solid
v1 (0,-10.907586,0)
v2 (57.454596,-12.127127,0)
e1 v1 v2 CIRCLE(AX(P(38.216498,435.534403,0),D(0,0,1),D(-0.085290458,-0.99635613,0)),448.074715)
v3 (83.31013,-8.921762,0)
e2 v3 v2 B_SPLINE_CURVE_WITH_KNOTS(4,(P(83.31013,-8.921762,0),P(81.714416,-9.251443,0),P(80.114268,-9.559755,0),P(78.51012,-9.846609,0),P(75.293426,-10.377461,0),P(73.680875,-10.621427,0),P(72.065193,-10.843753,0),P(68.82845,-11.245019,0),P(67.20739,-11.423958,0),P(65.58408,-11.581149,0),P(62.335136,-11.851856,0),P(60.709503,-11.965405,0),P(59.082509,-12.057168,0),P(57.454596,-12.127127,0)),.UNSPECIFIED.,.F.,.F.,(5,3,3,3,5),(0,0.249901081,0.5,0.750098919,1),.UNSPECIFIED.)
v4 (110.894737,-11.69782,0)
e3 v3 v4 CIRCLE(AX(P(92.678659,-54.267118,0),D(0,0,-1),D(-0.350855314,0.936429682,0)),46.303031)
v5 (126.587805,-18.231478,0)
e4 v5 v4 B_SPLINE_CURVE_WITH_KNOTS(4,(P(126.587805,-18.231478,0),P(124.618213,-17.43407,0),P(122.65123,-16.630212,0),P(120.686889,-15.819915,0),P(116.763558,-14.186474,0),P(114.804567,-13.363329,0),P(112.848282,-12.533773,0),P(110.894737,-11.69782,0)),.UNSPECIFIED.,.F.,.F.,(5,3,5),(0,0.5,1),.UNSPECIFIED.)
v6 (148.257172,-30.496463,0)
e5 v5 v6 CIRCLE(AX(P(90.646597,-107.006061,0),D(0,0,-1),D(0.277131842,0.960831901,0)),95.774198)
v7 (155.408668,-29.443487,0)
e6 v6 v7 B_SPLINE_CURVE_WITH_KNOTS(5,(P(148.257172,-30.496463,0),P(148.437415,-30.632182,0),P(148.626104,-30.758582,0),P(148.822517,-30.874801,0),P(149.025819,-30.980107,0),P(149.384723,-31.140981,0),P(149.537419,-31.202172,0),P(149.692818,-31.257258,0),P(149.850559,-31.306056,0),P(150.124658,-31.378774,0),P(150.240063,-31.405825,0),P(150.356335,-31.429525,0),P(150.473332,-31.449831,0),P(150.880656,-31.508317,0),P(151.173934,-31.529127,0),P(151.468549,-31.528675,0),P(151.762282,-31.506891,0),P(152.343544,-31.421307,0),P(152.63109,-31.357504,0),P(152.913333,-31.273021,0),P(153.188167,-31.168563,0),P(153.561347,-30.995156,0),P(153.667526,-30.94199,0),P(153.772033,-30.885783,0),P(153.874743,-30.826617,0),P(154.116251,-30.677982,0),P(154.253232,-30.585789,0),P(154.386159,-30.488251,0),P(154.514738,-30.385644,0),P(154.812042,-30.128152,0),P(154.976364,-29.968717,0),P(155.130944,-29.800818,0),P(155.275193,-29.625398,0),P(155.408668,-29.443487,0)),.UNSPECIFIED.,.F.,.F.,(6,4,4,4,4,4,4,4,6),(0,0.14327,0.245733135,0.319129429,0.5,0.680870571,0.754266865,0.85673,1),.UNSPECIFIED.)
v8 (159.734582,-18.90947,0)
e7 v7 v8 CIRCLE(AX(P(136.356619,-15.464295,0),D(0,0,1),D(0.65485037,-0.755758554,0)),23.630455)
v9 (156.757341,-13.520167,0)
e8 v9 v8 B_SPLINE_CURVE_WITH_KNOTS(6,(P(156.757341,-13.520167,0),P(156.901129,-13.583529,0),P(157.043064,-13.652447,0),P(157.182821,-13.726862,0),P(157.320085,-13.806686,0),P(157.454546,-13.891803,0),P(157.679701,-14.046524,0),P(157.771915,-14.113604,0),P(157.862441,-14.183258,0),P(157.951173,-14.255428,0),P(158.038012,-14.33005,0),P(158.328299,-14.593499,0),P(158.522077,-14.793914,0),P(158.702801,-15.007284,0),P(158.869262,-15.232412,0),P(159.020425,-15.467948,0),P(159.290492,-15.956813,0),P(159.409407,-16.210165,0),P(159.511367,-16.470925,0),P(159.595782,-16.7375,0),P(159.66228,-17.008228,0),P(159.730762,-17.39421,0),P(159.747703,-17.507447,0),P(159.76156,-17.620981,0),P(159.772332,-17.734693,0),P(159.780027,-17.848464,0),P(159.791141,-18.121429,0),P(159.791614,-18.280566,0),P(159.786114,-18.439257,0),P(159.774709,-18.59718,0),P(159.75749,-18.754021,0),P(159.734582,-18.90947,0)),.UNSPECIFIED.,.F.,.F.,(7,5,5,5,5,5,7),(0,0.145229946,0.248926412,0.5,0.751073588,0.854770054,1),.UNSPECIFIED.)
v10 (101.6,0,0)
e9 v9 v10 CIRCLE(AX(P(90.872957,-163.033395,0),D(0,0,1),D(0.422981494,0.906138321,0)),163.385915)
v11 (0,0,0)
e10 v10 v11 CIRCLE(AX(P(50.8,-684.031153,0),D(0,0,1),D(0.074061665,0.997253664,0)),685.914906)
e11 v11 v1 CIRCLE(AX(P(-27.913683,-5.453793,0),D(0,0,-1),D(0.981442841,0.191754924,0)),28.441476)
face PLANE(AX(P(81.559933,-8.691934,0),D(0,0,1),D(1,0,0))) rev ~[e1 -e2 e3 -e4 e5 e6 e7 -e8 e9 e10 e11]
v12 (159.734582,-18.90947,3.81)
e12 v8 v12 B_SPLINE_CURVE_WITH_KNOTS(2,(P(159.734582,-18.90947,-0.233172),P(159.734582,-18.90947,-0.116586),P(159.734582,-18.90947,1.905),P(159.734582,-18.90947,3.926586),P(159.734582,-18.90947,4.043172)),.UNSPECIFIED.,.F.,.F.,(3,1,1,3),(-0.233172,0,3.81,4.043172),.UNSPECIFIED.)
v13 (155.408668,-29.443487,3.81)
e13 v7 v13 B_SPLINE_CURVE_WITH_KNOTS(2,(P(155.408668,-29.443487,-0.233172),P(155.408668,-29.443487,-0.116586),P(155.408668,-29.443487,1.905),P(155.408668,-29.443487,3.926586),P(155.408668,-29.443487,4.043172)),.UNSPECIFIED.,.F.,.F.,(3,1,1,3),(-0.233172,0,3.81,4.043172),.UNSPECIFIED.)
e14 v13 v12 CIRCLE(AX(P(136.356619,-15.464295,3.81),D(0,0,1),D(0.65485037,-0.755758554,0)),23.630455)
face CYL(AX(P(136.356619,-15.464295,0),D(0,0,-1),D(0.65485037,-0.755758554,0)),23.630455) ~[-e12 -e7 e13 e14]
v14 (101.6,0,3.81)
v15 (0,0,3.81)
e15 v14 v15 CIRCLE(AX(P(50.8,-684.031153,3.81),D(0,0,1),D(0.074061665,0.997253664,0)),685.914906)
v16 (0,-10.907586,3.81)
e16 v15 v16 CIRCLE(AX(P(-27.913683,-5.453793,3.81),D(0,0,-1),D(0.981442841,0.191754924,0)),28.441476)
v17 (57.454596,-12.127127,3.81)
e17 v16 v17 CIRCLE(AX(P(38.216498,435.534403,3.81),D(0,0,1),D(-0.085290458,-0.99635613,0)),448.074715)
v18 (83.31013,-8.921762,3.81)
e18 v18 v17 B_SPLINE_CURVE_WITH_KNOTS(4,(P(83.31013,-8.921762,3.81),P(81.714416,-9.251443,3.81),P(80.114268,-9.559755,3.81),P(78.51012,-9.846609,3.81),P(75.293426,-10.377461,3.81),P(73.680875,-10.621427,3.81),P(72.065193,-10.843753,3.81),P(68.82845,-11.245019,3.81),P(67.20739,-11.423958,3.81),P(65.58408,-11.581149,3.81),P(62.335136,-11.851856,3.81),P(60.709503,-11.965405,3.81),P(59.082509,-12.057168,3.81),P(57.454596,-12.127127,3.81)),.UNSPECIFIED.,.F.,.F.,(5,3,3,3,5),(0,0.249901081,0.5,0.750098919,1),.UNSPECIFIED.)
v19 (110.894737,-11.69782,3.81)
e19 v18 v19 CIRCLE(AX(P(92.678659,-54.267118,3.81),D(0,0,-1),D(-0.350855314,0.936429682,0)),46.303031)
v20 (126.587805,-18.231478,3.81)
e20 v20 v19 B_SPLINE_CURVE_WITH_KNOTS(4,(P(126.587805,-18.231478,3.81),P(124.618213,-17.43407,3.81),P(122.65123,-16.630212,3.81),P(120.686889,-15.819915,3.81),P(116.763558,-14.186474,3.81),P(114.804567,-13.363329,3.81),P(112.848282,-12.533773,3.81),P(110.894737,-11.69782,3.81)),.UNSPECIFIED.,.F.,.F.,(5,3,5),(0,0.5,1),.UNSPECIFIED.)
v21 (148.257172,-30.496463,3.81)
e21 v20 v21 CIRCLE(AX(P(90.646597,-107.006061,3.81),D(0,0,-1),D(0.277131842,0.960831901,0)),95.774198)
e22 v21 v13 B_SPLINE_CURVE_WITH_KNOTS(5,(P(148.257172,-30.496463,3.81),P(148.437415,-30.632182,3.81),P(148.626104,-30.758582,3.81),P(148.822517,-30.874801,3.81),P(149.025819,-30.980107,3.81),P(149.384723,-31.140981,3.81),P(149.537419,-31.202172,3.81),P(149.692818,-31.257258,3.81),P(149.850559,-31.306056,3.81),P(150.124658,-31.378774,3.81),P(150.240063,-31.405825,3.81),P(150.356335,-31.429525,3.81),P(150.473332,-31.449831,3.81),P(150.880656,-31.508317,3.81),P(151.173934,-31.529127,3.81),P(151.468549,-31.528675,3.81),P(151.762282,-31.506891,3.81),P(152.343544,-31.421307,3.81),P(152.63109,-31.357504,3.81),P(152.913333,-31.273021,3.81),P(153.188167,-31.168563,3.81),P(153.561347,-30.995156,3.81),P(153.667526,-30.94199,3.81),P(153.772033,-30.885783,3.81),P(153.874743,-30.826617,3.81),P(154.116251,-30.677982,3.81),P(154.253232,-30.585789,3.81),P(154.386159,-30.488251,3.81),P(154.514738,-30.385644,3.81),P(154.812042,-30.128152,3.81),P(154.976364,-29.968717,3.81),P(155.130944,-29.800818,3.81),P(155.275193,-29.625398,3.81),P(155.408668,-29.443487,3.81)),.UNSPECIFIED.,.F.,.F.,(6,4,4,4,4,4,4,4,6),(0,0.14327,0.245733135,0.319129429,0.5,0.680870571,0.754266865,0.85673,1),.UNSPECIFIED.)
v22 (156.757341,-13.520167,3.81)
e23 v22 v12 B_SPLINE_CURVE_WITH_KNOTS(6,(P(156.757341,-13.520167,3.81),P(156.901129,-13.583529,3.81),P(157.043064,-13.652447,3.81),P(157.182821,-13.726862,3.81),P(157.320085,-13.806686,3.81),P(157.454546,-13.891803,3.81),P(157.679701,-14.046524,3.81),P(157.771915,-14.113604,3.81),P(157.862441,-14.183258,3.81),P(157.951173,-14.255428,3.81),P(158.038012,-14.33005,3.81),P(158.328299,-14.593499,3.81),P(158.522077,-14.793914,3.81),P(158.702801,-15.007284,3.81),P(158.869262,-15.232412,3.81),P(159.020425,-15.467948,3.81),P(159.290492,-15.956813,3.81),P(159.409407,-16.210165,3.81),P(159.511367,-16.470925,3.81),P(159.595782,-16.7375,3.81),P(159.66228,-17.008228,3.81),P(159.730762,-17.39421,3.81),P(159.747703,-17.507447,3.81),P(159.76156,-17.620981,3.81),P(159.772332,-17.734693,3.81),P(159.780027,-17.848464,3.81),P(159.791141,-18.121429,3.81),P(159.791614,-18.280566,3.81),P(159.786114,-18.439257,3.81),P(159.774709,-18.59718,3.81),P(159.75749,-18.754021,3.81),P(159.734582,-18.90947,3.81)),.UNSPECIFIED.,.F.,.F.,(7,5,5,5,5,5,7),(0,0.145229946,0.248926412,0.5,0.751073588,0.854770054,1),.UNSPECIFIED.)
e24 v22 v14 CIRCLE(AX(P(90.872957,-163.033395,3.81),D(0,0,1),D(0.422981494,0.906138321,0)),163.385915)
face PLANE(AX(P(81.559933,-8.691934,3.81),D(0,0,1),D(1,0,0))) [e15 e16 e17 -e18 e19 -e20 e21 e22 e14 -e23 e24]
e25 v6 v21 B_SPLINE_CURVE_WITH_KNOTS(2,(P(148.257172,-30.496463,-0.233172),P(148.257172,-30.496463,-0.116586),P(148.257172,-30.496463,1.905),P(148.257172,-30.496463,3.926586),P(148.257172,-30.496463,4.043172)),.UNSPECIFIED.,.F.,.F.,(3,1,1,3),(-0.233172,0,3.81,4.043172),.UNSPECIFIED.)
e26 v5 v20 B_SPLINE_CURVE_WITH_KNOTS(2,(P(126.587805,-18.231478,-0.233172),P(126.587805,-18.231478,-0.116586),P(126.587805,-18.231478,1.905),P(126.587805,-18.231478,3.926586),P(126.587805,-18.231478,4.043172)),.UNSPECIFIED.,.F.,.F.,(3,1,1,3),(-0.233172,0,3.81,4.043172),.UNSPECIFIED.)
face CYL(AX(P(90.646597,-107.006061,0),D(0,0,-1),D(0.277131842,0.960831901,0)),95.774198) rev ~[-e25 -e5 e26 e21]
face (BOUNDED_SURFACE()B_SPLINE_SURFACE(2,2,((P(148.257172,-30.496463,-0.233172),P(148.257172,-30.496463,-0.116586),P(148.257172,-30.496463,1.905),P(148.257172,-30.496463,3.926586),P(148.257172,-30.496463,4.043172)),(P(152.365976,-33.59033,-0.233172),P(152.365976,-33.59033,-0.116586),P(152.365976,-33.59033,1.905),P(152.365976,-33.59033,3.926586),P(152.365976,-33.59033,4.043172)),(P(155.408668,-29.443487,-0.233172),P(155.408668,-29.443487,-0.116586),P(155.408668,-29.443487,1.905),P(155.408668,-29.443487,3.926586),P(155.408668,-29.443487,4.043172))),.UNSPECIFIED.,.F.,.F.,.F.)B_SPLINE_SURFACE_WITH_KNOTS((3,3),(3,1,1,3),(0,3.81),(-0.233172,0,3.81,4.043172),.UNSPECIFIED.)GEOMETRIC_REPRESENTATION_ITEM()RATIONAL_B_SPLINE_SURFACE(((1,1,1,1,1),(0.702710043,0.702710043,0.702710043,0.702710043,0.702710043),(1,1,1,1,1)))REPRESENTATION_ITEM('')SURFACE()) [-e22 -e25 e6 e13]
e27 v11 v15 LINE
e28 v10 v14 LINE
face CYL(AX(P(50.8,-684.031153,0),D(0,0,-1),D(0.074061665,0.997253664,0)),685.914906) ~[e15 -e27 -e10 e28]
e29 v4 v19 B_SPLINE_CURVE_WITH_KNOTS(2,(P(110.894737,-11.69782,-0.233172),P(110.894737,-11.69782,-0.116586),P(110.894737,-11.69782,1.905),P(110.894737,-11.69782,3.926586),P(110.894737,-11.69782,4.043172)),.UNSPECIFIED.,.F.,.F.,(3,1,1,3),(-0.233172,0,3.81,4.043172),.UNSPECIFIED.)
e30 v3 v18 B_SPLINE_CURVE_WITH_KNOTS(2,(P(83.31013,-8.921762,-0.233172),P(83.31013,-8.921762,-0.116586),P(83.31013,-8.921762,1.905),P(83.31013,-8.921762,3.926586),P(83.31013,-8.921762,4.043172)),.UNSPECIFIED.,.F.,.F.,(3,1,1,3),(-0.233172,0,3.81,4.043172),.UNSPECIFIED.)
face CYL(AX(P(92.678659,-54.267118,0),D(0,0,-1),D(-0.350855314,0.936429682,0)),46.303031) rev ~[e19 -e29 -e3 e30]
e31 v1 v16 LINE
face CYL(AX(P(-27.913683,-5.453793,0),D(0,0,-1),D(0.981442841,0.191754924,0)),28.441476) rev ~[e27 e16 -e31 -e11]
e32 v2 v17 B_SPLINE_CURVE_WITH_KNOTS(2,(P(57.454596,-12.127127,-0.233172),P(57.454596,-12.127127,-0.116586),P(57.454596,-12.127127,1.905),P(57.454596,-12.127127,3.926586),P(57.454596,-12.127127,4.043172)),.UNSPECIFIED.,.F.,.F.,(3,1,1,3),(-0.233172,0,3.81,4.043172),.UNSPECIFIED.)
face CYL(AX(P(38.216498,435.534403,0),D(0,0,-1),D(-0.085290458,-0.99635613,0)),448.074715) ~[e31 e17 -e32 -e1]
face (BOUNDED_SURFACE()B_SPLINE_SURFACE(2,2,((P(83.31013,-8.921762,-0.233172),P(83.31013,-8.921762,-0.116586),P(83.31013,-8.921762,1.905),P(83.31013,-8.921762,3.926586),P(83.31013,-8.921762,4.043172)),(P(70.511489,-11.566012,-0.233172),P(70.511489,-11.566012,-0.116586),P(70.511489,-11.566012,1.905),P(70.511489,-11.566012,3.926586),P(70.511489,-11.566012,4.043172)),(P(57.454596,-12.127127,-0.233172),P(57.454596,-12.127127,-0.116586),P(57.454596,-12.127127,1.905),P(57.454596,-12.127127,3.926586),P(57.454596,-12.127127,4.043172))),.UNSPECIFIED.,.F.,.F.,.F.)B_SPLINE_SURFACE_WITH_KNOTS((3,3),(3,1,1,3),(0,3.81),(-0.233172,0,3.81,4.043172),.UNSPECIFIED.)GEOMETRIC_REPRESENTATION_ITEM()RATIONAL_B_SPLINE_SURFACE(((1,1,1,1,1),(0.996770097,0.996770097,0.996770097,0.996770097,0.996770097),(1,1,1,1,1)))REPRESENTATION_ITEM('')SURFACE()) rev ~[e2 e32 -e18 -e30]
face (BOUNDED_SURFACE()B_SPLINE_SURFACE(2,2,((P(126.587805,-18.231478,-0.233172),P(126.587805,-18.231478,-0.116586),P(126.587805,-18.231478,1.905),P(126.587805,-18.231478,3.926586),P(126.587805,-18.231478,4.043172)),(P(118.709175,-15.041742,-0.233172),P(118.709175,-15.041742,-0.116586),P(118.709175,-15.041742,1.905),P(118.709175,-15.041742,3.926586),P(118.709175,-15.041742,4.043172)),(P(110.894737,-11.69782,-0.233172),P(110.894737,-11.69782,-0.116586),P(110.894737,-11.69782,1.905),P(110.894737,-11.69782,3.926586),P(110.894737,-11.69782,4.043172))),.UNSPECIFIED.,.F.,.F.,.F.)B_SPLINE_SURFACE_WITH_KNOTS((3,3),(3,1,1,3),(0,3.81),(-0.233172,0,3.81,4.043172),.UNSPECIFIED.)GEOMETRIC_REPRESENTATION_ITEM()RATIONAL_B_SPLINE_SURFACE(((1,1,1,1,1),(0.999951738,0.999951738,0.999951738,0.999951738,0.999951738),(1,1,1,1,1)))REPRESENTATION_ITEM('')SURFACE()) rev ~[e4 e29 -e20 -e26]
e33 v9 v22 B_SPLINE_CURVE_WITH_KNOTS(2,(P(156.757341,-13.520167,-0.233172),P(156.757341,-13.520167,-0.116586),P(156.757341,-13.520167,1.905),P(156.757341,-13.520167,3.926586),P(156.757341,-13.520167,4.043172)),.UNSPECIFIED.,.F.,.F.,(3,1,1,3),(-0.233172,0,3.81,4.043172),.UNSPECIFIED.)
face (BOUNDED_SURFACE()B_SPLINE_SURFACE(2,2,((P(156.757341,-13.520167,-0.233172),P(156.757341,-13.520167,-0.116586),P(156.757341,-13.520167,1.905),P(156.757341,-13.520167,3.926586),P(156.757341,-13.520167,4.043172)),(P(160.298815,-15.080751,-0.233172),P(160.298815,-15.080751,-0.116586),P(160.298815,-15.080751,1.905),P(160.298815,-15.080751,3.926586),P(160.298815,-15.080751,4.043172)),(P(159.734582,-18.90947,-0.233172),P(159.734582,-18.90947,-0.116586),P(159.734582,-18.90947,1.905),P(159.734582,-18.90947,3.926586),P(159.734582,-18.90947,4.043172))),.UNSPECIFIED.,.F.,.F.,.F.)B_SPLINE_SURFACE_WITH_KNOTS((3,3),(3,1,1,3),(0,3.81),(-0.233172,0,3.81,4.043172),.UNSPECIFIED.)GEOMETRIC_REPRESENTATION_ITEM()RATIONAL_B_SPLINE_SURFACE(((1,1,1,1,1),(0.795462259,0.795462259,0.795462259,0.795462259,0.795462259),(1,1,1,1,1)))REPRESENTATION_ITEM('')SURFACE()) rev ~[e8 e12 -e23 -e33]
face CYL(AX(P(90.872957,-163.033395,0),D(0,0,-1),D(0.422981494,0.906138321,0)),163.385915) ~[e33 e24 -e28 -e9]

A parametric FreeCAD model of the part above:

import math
import FreeCAD as App
import Part
import Sketcher
from FreeCAD import Vector
Q = App.Units.Quantity


def edges_at(feature, points):
    """Names of the edges that pass closest to the given points."""
    edges = feature.Shape.Edges
    near = lambda p: min(range(len(edges)), key=lambda i: edges[i].distToShape(Part.Vertex(*p))[0])
    return sorted({f"Edge{near(p) + 1}" for p in points})

doc = App.newDocument("Part")
params = doc.addObject("Spreadsheet::Sheet", "Params")
for row, (alias, value) in enumerate([
    ("pad1_length", "0.15 in"),
    ("fillet_radius", "0.2 in"),
    ("fillet2_radius", "865.118216 mm"),
    ("fillet3_radius", "162.209665 mm"),
], start=1):
    params.set(f"A{row}", alias)
    params.set(f"B{row}", "=" + value)
    params.setAlias(f"B{row}", alias)

body = doc.addObject("PartDesign::Body", "Body")

# Sketch on XY plane
sketch1 = body.newObject("Sketcher::SketchObject", "Sketch")
sketch1.AttachmentSupport = (doc.getObject("XY_Plane"), [""])
sketch1.MapMode = "FlatFace"
sketch1.addGeometry(Part.ArcOfCircle(Part.Circle(Vector(90.872957, -163.033395, 0), Vector(0, 0, 1), 163.385915), math.radians(64.977035), math.radians(86.235558)), False)
sketch1.addGeometry(Part.ArcOfCircle(Part.Circle(Vector(50.8, -684.031153, 0), Vector(0, 0, 1), 685.914906), math.radians(85.75269), math.radians(94.24731)), False)
sketch1.addGeometry(Part.ArcOfCircle(Part.Circle(Vector(-27.913683, -5.453793, 0), Vector(0, 0, 1), 28.441476), math.radians(-11.055217), math.radians(11.055217)), False)
sketch1.addGeometry(Part.ArcOfCircle(Part.Circle(Vector(38.216498, 435.534403, 0), Vector(0, 0, 1), 448.074715), math.radians(-94.892728), math.radians(-85.107272)), False)
sketch1.addGeometry(Part.ArcOfCircle(Part.Circle(Vector(92.678659, -54.267118, 0), Vector(0, 0, 1), 46.303031), math.radians(58.03917), math.radians(110.539639)), False)
sketch1.addGeometry(Part.ArcOfCircle(Part.Circle(Vector(90.646597, -107.006061, 0), Vector(0, 0, 1), 95.774198), math.radians(50.294589), math.radians(73.910902)), False)
sketch1.addGeometry(Part.ArcOfCircle(Part.Circle(Vector(136.356619, -15.464295, 0), Vector(0, 0, 1), 23.630455), math.radians(-49.091695), math.radians(1.166677)), False)
sketch1.addConstraint(Sketcher.Constraint("Coincident", 0, 2, 1, 1))
sketch1.addConstraint(Sketcher.Constraint("Coincident", 1, 2, 2, 2))
sketch1.addConstraint(Sketcher.Constraint("Coincident", 2, 1, 3, 1))
sketch1.addConstraint(Sketcher.Constraint("Coincident", 3, 2, 4, 2))
sketch1.addConstraint(Sketcher.Constraint("Coincident", 4, 1, 5, 2))
sketch1.addConstraint(Sketcher.Constraint("Coincident", 5, 1, 6, 1))
sketch1.addConstraint(Sketcher.Constraint("Coincident", 6, 2, 0, 1))
sketch1.addConstraint(Sketcher.Constraint("Coincident", 1, 2, -1, 1))
sketch1.addConstraint(Sketcher.Constraint("PointOnObject", 0, 2, -1))
sketch1.addConstraint(Sketcher.Constraint("PointOnObject", 2, 1, -2))
sketch1.addConstraint(Sketcher.Constraint("DistanceX", -1, 1, 1, 3, Q("2 in")))
sketch1.addConstraint(Sketcher.Constraint("Radius", 5, 95.774198))
sketch1.addConstraint(Sketcher.Constraint("Radius", 4, 46.303031))
sketch1.addConstraint(Sketcher.Constraint("Radius", 0, 163.385915))
sketch1.addConstraint(Sketcher.Constraint("Radius", 1, 685.914906))
sketch1.addConstraint(Sketcher.Constraint("Radius", 2, 28.441476))
sketch1.addConstraint(Sketcher.Constraint("Radius", 3, 448.074715))
sketch1.addConstraint(Sketcher.Constraint("Radius", 6, 23.630455))
sketch1.addConstraint(Sketcher.Constraint("DistanceY", 0, 3, 2, 3, 157.579602))
sketch1.addConstraint(Sketcher.Constraint("DistanceY", 0, 3, 3, 3, 598.567798))
sketch1.addConstraint(Sketcher.Constraint("DistanceX", 3, 3, 5, 3, 52.4301))
sketch1.addConstraint(Sketcher.Constraint("DistanceY", 0, 3, 6, 3, 147.5691))
sketch1.addConstraint(Sketcher.Constraint("DistanceX", 2, 3, 6, 3, 164.270302))
sketch1.addConstraint(Sketcher.Constraint("DistanceX", 4, 1, 6, 2, 42.793498))
sketch1.addConstraint(Sketcher.Constraint("DistanceX", -1, 1, 4, 3, 92.678659))
sketch1.addConstraint(Sketcher.Constraint("DistanceY", 4, 3, -1, 1, 54.267118))
sketch1.addConstraint(Sketcher.Constraint("DistanceY", 5, 3, -1, 1, 107.006061))
pad1 = body.newObject("PartDesign::Pad", "Pad")
pad1.Profile = sketch1
pad1.setExpression("Length", "Params.pad1_length")
doc.recompute()

fillet = body.newObject("PartDesign::Fillet", "Fillet")
fillet.Base = (pad1, edges_at(pad1, [(151.831, -33.323, 1.905), (159.982, -14.983, 1.905)]))
fillet.setExpression("Radius", "Params.fillet_radius")
doc.recompute()

fillet2 = body.newObject("PartDesign::Fillet", "Fillet001")
fillet2.Base = (fillet, edges_at(fillet, [(117.189, -14.983, 1.905)]))
fillet2.setExpression("Radius", "Params.fillet2_radius")
doc.recompute()

fillet3 = body.newObject("PartDesign::Fillet", "Fillet002")
fillet3.Base = (fillet2, edges_at(fillet2, [(76.433, -10.908, 1.905)]))
fillet3.setExpression("Radius", "Params.fillet3_radius")

doc.recompute()
